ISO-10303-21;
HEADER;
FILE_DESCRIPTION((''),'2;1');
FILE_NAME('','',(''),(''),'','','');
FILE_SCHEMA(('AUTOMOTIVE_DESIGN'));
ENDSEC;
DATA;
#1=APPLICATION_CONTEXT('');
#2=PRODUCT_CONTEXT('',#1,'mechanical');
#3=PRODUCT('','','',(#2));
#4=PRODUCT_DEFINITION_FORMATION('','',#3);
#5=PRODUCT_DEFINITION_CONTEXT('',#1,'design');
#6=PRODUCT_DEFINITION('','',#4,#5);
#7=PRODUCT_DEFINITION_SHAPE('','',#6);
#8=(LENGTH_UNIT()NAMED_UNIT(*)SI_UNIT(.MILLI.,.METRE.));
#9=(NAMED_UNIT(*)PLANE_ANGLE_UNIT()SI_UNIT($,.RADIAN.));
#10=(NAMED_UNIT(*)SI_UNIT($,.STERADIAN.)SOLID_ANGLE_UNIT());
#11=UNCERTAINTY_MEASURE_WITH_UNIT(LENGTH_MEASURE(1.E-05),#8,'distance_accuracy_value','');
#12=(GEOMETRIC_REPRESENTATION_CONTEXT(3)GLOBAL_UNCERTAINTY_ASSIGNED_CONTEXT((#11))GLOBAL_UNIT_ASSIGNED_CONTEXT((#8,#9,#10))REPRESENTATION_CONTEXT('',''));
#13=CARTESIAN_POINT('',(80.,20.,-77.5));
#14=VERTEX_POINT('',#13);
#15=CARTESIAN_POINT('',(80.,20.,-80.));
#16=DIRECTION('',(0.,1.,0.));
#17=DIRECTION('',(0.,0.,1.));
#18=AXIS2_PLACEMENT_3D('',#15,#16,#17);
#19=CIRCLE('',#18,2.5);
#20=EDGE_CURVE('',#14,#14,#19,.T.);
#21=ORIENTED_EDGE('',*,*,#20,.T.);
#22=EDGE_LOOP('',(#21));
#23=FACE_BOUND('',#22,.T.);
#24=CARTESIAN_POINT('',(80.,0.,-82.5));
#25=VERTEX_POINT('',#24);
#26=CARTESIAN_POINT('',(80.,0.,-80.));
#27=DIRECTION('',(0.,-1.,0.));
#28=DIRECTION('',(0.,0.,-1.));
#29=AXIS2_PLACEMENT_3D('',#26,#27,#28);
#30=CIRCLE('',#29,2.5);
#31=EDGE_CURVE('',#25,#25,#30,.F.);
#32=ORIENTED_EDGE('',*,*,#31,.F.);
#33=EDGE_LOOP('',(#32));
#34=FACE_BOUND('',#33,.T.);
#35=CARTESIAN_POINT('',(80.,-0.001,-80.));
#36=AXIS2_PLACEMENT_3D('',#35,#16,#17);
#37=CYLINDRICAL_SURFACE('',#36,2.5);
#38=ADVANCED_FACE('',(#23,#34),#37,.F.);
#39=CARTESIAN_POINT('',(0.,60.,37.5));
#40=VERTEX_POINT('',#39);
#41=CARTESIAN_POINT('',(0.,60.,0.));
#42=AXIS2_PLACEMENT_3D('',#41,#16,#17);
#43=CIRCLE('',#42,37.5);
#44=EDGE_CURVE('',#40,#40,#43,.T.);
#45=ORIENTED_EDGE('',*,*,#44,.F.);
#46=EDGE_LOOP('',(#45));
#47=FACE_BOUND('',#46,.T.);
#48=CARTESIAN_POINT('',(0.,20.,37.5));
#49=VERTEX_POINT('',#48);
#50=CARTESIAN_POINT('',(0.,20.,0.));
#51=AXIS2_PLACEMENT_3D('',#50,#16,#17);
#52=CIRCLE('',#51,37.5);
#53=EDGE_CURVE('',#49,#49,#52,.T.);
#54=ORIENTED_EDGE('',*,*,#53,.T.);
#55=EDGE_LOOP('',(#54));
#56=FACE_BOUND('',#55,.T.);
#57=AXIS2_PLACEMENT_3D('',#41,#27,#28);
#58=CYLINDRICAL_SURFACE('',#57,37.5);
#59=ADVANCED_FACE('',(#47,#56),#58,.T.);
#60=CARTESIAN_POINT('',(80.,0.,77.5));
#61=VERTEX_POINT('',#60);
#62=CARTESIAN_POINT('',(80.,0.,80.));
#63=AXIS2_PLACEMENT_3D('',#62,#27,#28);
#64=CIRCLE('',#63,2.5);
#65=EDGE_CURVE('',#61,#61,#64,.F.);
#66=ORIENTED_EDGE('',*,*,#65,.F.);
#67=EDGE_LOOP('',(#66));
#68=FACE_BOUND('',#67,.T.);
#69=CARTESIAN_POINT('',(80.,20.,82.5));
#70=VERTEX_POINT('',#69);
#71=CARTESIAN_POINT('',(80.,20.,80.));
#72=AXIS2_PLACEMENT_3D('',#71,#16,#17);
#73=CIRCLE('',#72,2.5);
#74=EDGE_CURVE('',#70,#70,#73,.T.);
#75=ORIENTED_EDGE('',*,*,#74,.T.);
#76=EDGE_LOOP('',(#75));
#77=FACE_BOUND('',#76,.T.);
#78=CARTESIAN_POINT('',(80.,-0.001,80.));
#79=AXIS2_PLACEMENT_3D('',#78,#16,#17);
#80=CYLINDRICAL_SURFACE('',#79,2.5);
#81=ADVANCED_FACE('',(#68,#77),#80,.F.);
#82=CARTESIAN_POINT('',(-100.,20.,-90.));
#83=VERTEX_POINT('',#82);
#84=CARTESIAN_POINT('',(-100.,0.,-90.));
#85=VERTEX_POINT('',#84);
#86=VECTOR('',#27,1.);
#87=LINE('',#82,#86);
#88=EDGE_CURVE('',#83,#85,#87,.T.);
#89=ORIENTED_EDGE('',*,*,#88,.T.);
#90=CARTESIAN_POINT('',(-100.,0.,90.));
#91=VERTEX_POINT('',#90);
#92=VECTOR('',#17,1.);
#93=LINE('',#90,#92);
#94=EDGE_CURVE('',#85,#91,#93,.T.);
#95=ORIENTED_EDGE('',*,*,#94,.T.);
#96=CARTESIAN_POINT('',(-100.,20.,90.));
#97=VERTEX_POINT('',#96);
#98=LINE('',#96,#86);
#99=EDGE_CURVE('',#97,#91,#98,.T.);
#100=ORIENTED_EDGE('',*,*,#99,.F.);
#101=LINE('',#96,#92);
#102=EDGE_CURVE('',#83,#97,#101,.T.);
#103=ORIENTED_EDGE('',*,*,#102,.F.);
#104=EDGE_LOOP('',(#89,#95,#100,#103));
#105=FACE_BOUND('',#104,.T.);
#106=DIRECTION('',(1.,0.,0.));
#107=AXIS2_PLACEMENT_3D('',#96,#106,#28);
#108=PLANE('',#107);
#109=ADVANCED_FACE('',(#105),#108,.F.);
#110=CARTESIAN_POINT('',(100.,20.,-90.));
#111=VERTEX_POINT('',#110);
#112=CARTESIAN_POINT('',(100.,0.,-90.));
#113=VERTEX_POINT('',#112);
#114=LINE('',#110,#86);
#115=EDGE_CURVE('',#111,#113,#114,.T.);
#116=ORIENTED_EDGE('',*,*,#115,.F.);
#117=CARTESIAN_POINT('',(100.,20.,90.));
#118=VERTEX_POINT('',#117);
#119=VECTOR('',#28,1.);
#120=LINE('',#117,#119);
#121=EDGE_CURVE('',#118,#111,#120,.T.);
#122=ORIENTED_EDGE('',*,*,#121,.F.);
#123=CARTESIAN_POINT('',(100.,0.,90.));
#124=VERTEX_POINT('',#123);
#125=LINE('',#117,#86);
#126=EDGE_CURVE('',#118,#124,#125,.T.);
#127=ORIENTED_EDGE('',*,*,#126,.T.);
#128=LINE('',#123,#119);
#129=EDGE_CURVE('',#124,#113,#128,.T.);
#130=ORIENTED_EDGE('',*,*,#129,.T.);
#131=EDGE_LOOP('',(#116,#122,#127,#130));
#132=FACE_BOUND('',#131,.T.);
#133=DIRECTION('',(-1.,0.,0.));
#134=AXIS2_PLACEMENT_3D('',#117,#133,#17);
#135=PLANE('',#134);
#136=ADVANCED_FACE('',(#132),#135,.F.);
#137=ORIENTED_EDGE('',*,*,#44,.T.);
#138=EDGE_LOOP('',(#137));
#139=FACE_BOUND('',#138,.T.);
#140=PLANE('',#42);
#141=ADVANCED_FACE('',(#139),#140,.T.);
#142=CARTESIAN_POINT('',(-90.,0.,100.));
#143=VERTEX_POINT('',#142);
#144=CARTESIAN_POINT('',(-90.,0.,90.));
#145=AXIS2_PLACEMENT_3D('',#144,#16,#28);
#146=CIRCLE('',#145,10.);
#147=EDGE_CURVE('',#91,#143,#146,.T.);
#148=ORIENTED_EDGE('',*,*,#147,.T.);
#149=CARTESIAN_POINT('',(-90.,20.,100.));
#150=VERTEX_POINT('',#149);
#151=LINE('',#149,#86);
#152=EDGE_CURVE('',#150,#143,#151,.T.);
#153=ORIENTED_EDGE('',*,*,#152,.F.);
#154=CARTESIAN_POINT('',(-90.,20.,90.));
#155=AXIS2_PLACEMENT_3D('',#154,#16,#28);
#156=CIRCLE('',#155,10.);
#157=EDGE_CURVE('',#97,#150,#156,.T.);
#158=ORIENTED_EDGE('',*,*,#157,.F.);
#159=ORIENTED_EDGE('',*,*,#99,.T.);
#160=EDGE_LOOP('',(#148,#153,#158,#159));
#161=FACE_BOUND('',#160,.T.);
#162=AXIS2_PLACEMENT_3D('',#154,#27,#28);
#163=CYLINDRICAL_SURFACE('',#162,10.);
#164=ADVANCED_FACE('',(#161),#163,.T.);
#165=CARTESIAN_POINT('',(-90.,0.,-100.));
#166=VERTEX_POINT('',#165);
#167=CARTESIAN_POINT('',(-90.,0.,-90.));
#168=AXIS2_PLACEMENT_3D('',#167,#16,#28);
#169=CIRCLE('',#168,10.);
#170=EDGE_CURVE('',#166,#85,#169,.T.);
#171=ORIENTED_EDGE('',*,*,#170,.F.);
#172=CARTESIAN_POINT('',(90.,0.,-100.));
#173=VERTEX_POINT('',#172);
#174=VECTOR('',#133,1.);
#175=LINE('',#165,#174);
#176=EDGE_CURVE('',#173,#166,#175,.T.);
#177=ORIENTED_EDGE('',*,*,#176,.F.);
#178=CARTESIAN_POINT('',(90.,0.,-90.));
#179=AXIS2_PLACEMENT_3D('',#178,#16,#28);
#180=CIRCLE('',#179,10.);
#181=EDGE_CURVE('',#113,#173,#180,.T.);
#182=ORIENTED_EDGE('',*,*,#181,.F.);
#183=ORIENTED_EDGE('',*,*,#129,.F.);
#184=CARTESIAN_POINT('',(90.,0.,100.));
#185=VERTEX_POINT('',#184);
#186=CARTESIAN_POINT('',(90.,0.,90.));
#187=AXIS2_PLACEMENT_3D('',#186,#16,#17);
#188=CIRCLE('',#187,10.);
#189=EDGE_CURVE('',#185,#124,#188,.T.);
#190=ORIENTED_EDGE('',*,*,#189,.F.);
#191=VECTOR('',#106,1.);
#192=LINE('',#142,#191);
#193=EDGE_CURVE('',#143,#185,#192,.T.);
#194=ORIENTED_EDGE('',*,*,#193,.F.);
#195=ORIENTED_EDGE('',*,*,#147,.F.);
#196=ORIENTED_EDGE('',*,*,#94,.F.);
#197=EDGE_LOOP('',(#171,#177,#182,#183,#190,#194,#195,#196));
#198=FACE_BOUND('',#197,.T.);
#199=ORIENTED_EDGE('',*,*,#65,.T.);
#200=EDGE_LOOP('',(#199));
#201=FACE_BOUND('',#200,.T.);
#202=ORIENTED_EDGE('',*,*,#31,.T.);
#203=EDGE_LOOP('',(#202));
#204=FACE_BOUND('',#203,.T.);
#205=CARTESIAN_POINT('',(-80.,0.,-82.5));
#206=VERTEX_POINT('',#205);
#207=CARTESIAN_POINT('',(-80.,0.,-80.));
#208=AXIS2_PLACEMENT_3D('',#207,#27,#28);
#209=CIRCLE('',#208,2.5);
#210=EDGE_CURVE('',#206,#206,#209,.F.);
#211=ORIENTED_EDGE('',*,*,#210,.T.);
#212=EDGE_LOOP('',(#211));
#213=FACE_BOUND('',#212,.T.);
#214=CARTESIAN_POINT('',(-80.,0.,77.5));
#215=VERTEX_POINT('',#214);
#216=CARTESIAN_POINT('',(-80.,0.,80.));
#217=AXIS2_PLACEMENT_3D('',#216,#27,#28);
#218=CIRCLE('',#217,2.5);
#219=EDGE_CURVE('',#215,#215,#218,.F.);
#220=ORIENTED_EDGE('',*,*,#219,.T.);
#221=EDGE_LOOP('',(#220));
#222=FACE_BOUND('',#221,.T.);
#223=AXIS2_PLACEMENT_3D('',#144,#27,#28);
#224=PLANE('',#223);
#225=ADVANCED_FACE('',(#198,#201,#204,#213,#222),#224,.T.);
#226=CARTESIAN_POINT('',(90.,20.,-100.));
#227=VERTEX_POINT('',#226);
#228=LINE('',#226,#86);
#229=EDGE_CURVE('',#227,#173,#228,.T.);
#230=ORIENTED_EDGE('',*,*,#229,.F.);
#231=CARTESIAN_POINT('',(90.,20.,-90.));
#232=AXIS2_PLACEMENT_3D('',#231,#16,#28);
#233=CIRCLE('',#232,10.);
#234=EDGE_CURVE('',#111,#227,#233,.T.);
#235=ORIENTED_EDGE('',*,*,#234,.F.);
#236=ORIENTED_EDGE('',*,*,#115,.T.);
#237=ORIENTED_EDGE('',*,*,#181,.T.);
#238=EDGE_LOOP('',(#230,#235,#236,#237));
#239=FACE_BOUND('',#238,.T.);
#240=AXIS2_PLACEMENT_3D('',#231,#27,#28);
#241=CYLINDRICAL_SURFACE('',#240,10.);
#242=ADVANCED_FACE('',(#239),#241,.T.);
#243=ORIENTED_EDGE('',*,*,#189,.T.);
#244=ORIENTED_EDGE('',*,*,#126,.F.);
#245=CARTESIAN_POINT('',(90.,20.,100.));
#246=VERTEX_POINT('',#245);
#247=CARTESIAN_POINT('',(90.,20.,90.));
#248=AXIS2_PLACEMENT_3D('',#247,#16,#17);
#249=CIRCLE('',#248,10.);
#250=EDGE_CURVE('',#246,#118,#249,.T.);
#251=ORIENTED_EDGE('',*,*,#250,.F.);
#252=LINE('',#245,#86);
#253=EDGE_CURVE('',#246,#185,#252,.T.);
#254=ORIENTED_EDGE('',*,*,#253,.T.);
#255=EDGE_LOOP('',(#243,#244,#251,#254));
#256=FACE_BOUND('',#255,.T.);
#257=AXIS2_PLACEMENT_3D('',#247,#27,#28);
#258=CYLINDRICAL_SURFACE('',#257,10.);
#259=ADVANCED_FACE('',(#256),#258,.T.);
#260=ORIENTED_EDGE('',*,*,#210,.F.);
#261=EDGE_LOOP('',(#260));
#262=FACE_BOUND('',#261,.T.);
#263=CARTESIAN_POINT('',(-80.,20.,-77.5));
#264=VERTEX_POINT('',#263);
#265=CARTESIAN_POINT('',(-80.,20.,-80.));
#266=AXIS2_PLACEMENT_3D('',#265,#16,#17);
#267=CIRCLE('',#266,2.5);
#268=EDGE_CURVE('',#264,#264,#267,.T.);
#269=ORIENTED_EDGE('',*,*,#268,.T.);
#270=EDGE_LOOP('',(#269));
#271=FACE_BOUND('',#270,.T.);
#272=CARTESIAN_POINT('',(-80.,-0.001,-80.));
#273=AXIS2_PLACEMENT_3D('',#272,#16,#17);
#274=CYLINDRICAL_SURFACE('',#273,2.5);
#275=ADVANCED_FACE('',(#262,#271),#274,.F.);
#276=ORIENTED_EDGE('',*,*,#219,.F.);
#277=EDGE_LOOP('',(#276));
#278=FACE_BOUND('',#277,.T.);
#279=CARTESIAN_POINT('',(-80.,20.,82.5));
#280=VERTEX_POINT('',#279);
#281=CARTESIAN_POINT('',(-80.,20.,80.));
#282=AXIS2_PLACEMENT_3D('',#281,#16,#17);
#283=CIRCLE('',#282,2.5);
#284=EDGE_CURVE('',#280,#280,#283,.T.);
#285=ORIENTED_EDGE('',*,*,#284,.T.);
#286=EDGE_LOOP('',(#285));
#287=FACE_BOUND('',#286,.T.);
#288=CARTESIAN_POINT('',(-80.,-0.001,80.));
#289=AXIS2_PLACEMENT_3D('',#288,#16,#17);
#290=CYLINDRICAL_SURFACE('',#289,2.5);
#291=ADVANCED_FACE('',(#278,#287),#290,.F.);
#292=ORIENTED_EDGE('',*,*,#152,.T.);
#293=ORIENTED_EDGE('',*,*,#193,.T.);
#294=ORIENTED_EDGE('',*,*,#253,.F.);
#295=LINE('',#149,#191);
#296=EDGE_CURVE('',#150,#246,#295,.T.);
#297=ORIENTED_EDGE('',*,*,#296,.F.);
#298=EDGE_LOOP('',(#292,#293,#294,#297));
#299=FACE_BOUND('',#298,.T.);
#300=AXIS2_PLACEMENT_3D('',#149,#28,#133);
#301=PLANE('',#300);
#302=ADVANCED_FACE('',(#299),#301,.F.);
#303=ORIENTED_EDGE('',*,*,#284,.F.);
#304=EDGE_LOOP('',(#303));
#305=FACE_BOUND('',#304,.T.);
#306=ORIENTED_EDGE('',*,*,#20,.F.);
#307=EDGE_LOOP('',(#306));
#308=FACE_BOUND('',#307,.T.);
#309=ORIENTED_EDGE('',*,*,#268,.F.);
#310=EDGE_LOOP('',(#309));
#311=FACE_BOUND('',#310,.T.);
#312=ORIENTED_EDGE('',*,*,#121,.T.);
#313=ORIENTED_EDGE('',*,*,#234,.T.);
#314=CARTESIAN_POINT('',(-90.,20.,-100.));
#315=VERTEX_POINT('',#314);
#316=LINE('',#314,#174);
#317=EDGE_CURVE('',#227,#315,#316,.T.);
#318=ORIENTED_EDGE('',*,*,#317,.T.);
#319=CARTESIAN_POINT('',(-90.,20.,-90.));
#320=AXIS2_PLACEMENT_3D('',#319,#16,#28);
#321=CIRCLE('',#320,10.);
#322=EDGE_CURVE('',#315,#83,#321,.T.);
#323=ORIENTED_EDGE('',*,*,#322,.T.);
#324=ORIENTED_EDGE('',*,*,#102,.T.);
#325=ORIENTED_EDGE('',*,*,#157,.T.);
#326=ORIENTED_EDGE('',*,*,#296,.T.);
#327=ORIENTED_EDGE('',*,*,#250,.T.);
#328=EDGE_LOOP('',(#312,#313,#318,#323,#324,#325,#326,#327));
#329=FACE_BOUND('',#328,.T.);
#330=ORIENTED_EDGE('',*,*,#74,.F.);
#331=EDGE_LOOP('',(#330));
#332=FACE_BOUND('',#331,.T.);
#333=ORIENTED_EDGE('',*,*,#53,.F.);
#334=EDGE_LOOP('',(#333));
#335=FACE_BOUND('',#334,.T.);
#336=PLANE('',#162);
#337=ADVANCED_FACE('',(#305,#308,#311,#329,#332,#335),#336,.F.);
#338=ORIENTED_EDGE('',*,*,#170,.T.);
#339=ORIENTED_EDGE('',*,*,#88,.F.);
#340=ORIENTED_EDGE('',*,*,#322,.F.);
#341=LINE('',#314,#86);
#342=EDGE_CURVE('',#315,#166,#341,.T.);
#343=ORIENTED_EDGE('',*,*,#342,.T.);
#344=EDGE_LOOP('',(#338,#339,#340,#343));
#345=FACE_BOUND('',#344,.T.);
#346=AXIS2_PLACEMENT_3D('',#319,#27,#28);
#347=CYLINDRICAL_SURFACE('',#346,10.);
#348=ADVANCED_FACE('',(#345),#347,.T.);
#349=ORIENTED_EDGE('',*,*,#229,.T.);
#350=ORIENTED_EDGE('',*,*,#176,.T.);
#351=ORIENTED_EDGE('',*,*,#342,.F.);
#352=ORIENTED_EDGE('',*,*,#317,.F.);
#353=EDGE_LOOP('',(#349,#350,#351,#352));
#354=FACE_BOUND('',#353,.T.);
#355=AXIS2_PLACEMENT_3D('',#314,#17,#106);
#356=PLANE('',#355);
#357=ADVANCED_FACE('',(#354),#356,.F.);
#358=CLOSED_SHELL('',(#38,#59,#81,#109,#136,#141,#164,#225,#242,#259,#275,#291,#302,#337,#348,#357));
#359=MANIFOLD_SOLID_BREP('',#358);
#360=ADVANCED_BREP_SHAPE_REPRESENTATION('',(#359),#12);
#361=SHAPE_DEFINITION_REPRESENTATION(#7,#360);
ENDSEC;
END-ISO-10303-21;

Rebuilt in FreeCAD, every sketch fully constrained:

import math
import FreeCAD as App
import Part
import Sketcher
from FreeCAD import Vector
Q = App.Units.Quantity

doc = App.newDocument("Part")
body = doc.addObject("PartDesign::Body", "Body")

sketch1 = body.newObject("Sketcher::SketchObject", "Sketch")
sketch1.AttachmentSupport = (doc.getObject("XZ_Plane"), [""])
sketch1.MapMode = "FlatFace"
sketch1.addGeometry([
    Part.LineSegment(Vector(-90, 100, 0), Vector(90, 100, 0)),
    Part.ArcOfCircle(Part.Circle(Vector(90, 90, 0), Vector(0, 0, 1), 10), math.radians(0), math.radians(90)),
    Part.LineSegment(Vector(100, 90, 0), Vector(100, -90, 0)),
    Part.ArcOfCircle(Part.Circle(Vector(90, -90, 0), Vector(0, 0, 1), 10), math.radians(-90), math.radians(0)),
    Part.LineSegment(Vector(90, -100, 0), Vector(-90, -100, 0)),
    Part.ArcOfCircle(Part.Circle(Vector(-90, -90, 0), Vector(0, 0, 1), 10), math.radians(180), math.radians(270)),
    Part.LineSegment(Vector(-100, -90, 0), Vector(-100, 90, 0)),
    Part.ArcOfCircle(Part.Circle(Vector(-90, 90, 0), Vector(0, 0, 1), 10), math.radians(90), math.radians(180)),
], False)
sketch1.addConstraint([
    Sketcher.Constraint("Tangent", 0, 2, 1, 2),
    Sketcher.Constraint("Tangent", 1, 1, 2, 1),
    Sketcher.Constraint("Tangent", 2, 2, 3, 2),
    Sketcher.Constraint("Tangent", 3, 1, 4, 1),
    Sketcher.Constraint("Tangent", 4, 2, 5, 2),
    Sketcher.Constraint("Tangent", 5, 1, 6, 1),
    Sketcher.Constraint("Tangent", 6, 2, 7, 2),
    Sketcher.Constraint("Tangent", 7, 1, 0, 1),
    Sketcher.Constraint("Horizontal", 0),
    Sketcher.Constraint("Vertical", 2),
    Sketcher.Constraint("Horizontal", 4),
    Sketcher.Constraint("Vertical", 6),
    Sketcher.Constraint("Equal", 1, 3),
    Sketcher.Constraint("Equal", 3, 5),
    Sketcher.Constraint("Equal", 5, 7),
    Sketcher.Constraint("Symmetric", 1, 3, 5, 3, -1, 1),
    Sketcher.Constraint("Equal", 4, 2),
    Sketcher.Constraint("Radius", 1, Q("10 mm")),
    Sketcher.Constraint("DistanceX", 0, 1, 0, 2, Q("180 mm")),
])
pad1 = body.newObject("PartDesign::Pad", "Pad")
pad1.Profile = sketch1
pad1.Length = 20
pad1.Reversed = True

sketch2 = body.newObject("Sketcher::SketchObject", "Sketch001")
sketch2.AttachmentSupport = (doc.getObject("XZ_Plane"), [""])
sketch2.MapMode = "FlatFace"
sketch2.AttachmentOffset = App.Placement(Vector(0, 0, -20), App.Rotation())
sketch2.addGeometry(Part.Circle(Vector(0, 0, 0), Vector(0, 0, 1), 37.5), False)
sketch2.addConstraint([
    Sketcher.Constraint("Coincident", 0, 3, -1, 1),
    Sketcher.Constraint("Diameter", 0, Q("75 mm")),
])
pad2 = body.newObject("PartDesign::Pad", "Pad001")
pad2.Profile = sketch2
pad2.Length = 40
pad2.Reversed = True

sketch3 = body.newObject("Sketcher::SketchObject", "Sketch002")
sketch3.AttachmentSupport = (doc.getObject("XZ_Plane"), [""])
sketch3.MapMode = "FlatFace"
sketch3.AttachmentOffset = App.Placement(Vector(0, 0, -20), App.Rotation())
sketch3.addGeometry(Part.Circle(Vector(-80, -80, 0), Vector(0, 0, 1), 2.5), False)
sketch3.addConstraint([
    Sketcher.Constraint("Diameter", 0, Q("5 mm")),
    Sketcher.Constraint("DistanceX", 0, 3, -1, 1, Q("80 mm")),
    Sketcher.Constraint("DistanceY", 0, 3, -1, 1, Q("80 mm")),
])
pocket1 = body.newObject("PartDesign::Pocket", "Pocket")
pocket1.Profile = sketch3
pocket1.Type = "UpToFirst"
pocket1.Reversed = True

sketch4 = body.newObject("Sketcher::SketchObject", "Sketch003")
sketch4.AttachmentSupport = (doc.getObject("XZ_Plane"), [""])
sketch4.MapMode = "FlatFace"
sketch4.AttachmentOffset = App.Placement(Vector(0, 0, -20), App.Rotation())
sketch4.addGeometry(Part.Circle(Vector(80, -80, 0), Vector(0, 0, 1), 2.5), False)
sketch4.addConstraint([
    Sketcher.Constraint("Diameter", 0, Q("5 mm")),
    Sketcher.Constraint("DistanceX", -1, 1, 0, 3, Q("80 mm")),
    Sketcher.Constraint("DistanceY", 0, 3, -1, 1, Q("80 mm")),
])
pocket2 = body.newObject("PartDesign::Pocket", "Pocket001")
pocket2.Profile = sketch4
pocket2.Type = "UpToFirst"
pocket2.Reversed = True

sketch5 = body.newObject("Sketcher::SketchObject", "Sketch004")
sketch5.AttachmentSupport = (doc.getObject("XZ_Plane"), [""])
sketch5.MapMode = "FlatFace"
sketch5.AttachmentOffset = App.Placement(Vector(0, 0, -20), App.Rotation())
sketch5.addGeometry(Part.Circle(Vector(80, 80, 0), Vector(0, 0, 1), 2.5), False)
sketch5.addConstraint([
    Sketcher.Constraint("Diameter", 0, Q("5 mm")),
    Sketcher.Constraint("DistanceX", -1, 1, 0, 3, Q("80 mm")),
    Sketcher.Constraint("DistanceY", -1, 1, 0, 3, Q("80 mm")),
])
pocket3 = body.newObject("PartDesign::Pocket", "Pocket002")
pocket3.Profile = sketch5
pocket3.Type = "UpToFirst"
pocket3.Reversed = True

sketch6 = body.newObject("Sketcher::SketchObject", "Sketch005")
sketch6.AttachmentSupport = (doc.getObject("XZ_Plane"), [""])
sketch6.MapMode = "FlatFace"
sketch6.AttachmentOffset = App.Placement(Vector(0, 0, -20), App.Rotation())
sketch6.addGeometry(Part.Circle(Vector(-80, 80, 0), Vector(0, 0, 1), 2.5), False)
sketch6.addConstraint([
    Sketcher.Constraint("Diameter", 0, Q("5 mm")),
    Sketcher.Constraint("DistanceX", 0, 3, -1, 1, Q("80 mm")),
    Sketcher.Constraint("DistanceY", -1, 1, 0, 3, Q("80 mm")),
])
pocket4 = body.newObject("PartDesign::Pocket", "Pocket003")
pocket4.Profile = sketch6
pocket4.Type = "UpToFirst"
pocket4.Reversed = True

doc.recompute()
